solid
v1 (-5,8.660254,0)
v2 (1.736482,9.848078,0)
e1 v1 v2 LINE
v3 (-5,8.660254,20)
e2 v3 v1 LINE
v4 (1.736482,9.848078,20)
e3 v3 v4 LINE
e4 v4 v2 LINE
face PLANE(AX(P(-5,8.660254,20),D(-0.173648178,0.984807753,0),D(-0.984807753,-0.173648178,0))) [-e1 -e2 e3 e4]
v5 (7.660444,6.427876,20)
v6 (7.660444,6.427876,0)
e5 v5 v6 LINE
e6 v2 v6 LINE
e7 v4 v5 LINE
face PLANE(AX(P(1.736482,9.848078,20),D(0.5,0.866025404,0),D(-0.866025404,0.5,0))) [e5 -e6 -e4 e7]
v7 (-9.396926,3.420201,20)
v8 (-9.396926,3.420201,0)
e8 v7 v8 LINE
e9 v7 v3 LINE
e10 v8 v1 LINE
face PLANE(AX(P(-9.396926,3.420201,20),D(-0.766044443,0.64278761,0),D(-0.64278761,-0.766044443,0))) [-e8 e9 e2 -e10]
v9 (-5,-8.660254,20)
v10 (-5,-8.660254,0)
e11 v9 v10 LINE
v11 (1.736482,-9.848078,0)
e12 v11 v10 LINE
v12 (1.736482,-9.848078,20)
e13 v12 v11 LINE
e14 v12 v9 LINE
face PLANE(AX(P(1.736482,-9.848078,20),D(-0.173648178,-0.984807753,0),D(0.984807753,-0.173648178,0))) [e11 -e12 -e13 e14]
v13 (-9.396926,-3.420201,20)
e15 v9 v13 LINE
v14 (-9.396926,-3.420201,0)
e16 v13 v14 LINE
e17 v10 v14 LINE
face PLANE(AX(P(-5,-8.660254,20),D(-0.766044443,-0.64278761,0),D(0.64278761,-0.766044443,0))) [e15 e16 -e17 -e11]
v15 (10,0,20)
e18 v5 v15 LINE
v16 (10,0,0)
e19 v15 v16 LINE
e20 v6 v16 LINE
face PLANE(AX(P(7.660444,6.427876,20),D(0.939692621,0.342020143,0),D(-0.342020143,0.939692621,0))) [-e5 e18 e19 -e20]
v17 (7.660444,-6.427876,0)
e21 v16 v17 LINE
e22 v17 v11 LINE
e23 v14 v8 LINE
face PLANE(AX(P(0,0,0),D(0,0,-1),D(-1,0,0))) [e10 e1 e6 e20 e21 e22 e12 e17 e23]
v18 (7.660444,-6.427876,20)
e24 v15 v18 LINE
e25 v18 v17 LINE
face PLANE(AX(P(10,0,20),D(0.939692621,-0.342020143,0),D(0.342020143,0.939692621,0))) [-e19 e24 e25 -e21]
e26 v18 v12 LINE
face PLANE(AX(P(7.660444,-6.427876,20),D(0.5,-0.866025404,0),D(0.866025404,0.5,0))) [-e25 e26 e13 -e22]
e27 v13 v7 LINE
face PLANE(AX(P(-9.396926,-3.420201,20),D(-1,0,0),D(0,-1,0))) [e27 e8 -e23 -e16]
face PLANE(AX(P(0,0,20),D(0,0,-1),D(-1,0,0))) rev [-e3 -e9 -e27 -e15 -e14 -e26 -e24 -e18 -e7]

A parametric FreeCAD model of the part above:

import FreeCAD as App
import Part
import Sketcher

V = App.Vector
Q = App.Units.Quantity


def add_polygon(sketch, points):
    """Adds a closed chain of lines whose ends are joined by coincident constraints."""
    first, n = sketch.GeometryCount, len(points)
    for a, b in zip(points, points[1:] + points[:1]):
        sketch.addGeometry(Part.LineSegment(App.Vector(*a, 0), App.Vector(*b, 0)), False)
    for i in range(n):
        sketch.addConstraint(Sketcher.Constraint("Coincident", first + i, 2, first + (i + 1) % n, 1))

doc = App.newDocument("Part")
body = doc.addObject("PartDesign::Body", "Body")

sketch1 = doc.addObject("Sketcher::SketchObject", "Sketch")
body.addObject(sketch1)
sketch1.AttachmentSupport = (doc.XY_Plane, [""])
sketch1.MapMode = "FlatFace"
add_polygon(sketch1, [(10, 0), (7.660444, 6.427876), (1.736482, 9.848078), (-5, 8.660254), (-9.396926, 3.420201), (-9.396926, -3.420201), (-5, -8.660254), (1.736482, -9.848078), (7.660444, -6.427876)])
sketch1.addConstraint([
    Sketcher.Constraint("Vertical", 4),
    Sketcher.Constraint("Symmetric", 2, 2, 5, 2, -1),
    Sketcher.Constraint("Symmetric", 1, 2, 6, 2, -1),
    Sketcher.Constraint("Symmetric", 0, 2, 7, 2, -1),
    Sketcher.Constraint("PointOnObject", 8, 2, -1),
    Sketcher.Constraint("Equal", 0, 1),
    Sketcher.Constraint("Equal", 1, 2),
    Sketcher.Constraint("Equal", 2, 3),
    Sketcher.Constraint("Equal", 3, 5),
    Sketcher.Constraint("Angle", 0, Q("110 deg")),
    Sketcher.Constraint("Angle", 1, Q("150 deg")),
    Sketcher.Constraint("Angle", 2, Q("-170 deg")),
    Sketcher.Constraint("Angle", 3, Q("-130 deg")),
    Sketcher.Constraint("DistanceX", 2, 2, -1, 1, 5.0),
    Sketcher.Constraint("DistanceX", -1, 1, 8, 2, 10.0),
])
pad1 = doc.addObject("PartDesign::Pad", "Pad")
body.addObject(pad1)
pad1.Profile = sketch1
pad1.Length = 20

doc.recompute()
